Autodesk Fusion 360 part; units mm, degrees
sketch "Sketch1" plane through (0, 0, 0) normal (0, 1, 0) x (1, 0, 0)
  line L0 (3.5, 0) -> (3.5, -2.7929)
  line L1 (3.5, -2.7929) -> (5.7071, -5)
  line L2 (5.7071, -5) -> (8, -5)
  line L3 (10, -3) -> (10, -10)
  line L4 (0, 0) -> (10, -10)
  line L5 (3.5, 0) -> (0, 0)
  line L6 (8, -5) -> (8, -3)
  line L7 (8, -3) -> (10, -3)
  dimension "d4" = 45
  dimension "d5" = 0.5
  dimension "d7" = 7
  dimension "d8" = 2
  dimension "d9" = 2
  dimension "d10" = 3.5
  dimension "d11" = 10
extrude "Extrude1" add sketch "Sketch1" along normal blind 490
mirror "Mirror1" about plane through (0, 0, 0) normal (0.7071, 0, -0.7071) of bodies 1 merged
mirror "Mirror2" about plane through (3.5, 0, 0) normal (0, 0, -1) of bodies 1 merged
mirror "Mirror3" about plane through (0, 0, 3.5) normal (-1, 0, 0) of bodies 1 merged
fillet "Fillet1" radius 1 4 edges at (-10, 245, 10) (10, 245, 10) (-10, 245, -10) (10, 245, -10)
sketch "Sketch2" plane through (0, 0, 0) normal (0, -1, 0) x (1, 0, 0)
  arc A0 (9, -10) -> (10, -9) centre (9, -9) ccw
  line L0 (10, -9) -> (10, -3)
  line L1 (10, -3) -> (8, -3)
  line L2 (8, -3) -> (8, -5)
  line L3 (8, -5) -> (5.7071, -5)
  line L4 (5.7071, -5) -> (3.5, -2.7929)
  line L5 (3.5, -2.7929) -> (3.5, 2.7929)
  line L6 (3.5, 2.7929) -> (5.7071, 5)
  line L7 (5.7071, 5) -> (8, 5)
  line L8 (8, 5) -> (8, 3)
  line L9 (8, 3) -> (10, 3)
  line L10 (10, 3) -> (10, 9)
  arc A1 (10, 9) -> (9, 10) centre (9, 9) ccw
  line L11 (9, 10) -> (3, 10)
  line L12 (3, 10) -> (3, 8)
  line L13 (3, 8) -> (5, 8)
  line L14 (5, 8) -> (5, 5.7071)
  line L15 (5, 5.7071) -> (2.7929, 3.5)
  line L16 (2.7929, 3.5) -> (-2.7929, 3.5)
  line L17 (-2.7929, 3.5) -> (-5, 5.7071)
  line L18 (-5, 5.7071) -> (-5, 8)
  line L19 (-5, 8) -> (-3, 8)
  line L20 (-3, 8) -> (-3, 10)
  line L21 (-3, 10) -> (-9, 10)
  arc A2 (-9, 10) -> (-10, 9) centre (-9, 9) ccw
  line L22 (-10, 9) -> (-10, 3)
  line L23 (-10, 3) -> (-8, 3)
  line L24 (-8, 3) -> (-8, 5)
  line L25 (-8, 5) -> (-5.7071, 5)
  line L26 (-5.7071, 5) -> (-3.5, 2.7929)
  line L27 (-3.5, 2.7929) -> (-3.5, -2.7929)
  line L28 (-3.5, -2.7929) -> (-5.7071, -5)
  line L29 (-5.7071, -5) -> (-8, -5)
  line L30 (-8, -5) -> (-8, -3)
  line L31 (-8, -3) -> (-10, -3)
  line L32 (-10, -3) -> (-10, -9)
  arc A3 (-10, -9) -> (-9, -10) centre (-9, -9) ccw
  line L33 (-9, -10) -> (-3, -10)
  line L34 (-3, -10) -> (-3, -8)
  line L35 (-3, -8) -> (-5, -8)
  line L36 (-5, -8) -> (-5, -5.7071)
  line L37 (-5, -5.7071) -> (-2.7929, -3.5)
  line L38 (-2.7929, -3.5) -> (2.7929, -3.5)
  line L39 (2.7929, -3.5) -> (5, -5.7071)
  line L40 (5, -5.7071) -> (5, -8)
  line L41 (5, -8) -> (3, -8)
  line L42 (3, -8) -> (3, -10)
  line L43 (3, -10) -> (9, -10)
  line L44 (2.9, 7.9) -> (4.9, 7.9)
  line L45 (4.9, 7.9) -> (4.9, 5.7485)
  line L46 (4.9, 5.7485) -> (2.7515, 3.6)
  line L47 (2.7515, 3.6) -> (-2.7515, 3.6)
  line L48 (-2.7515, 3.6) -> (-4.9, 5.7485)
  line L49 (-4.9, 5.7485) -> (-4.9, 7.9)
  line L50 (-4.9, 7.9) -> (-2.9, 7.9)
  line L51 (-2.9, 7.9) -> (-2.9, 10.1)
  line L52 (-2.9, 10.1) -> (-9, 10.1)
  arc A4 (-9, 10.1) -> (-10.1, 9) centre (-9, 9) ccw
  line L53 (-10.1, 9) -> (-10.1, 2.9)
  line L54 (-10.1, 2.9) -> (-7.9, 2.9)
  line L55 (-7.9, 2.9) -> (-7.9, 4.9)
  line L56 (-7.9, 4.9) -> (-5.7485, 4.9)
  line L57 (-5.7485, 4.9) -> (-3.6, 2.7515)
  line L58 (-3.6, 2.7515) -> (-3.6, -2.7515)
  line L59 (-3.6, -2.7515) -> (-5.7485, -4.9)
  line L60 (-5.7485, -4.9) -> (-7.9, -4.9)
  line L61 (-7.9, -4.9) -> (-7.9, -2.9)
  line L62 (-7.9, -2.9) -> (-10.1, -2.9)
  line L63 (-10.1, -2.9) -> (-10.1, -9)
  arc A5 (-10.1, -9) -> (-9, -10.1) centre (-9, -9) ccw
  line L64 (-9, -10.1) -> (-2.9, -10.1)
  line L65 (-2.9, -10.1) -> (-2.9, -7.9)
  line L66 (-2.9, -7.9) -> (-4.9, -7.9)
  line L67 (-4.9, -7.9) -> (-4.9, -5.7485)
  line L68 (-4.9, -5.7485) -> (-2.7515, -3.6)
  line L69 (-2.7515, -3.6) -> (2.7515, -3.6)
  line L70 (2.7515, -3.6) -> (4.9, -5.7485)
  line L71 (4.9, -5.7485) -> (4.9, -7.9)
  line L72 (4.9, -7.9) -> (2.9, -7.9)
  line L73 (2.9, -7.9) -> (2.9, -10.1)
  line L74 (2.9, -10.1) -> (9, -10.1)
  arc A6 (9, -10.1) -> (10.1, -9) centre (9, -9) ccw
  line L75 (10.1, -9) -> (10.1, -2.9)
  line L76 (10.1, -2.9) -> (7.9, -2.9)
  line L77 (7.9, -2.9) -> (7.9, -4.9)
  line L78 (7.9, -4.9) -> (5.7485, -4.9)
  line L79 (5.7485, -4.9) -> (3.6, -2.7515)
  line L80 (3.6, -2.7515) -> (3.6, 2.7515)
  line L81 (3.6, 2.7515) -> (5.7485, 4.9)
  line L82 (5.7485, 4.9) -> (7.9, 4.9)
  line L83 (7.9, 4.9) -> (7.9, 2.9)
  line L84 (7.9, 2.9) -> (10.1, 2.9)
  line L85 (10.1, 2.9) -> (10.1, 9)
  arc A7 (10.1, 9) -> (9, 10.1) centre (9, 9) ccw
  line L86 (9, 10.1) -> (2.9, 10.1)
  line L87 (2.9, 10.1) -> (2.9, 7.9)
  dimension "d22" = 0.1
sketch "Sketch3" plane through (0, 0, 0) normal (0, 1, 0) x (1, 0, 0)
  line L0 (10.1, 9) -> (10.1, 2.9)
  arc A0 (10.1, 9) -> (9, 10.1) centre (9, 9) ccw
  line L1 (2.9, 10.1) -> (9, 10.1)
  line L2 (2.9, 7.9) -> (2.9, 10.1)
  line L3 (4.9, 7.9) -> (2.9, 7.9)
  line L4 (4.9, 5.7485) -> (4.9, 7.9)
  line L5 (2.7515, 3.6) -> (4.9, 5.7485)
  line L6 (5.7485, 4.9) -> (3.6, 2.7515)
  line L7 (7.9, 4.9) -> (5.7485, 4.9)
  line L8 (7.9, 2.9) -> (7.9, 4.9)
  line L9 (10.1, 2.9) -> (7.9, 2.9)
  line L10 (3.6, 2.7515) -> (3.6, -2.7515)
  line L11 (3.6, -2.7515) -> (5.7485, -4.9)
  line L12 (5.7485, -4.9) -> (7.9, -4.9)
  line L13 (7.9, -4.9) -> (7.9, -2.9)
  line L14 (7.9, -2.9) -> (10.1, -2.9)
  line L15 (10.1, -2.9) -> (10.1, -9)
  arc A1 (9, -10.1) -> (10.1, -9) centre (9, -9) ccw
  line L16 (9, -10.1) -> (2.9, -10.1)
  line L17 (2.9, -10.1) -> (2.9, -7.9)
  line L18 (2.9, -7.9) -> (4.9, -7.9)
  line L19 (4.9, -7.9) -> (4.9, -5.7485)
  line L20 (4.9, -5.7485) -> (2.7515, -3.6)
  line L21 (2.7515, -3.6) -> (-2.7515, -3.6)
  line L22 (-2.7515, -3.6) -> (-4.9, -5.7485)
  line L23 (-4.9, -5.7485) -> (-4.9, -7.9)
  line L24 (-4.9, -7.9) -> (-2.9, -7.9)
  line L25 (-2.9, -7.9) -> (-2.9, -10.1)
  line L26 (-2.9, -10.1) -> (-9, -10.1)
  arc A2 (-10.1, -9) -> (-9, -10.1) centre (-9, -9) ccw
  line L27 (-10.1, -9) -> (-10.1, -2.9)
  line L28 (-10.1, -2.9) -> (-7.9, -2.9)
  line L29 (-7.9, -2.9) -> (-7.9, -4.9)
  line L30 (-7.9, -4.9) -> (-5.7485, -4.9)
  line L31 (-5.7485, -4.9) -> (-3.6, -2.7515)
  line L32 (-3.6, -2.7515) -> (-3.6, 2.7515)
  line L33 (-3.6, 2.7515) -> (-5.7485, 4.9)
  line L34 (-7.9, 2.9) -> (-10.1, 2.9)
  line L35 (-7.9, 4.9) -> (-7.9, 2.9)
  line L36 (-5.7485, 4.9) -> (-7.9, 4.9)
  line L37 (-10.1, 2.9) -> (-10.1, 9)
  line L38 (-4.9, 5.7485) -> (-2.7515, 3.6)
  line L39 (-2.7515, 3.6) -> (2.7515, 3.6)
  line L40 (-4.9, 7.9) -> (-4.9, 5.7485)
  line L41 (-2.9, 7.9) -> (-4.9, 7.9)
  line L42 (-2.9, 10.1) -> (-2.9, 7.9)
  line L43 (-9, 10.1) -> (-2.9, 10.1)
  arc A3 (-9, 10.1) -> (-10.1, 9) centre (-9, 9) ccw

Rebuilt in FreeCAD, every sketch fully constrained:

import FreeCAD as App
import Part
import Sketcher

V = App.Vector
Q = App.Units.Quantity


def edges_at(feature, points):
    """Names of the edges that pass closest to the given points."""
    edges = feature.Shape.Edges
    near = lambda p: min(range(len(edges)), key=lambda i: edges[i].distToShape(Part.Vertex(*p))[0])
    return sorted({f"Edge{near(p) + 1}" for p in points})

doc = App.newDocument("Part")
body = doc.addObject("PartDesign::Body", "Body")

# Sketch on XZ plane
sketch1 = body.newObject("Sketcher::SketchObject", "Sketch")
sketch1.AttachmentSupport = (doc.getObject("XZ_Plane"), [""])
sketch1.MapMode = "FlatFace"
sketch1.addGeometry([
    Part.LineSegment(V(3.5, 2.8, 0), V(3.5, 0, 0)),  # 0
    Part.LineSegment(V(3.5, 0, 0), V(0, 0, 0)),  # 1
    Part.LineSegment(V(0, 0, 0), V(10, 10, 0)),  # 2
    Part.LineSegment(V(10, 10, 0), V(10, 3, 0)),  # 3
    Part.LineSegment(V(10, 3, 0), V(8, 3, 0)),  # 4
    Part.LineSegment(V(8, 3, 0), V(8, 5, 0)),  # 5
    Part.LineSegment(V(8, 5, 0), V(5.7, 5, 0)),  # 6
    Part.LineSegment(V(5.7, 5, 0), V(3.5, 2.8, 0)),  # 7
], False)
sketch1.addConstraint([
    Sketcher.Constraint("Coincident", 0, 2, 1, 1),
    Sketcher.Constraint("Coincident", 1, 2, 2, 1),
    Sketcher.Constraint("Coincident", 2, 2, 3, 1),
    Sketcher.Constraint("Coincident", 3, 2, 4, 1),
    Sketcher.Constraint("Coincident", 4, 2, 5, 1),
    Sketcher.Constraint("Coincident", 5, 2, 6, 1),
    Sketcher.Constraint("Coincident", 6, 2, 7, 1),
    Sketcher.Constraint("Coincident", 7, 2, 0, 1),
    Sketcher.Constraint("Vertical", 0),
    Sketcher.Constraint("Horizontal", 1),
    Sketcher.Constraint("Vertical", 3),
    Sketcher.Constraint("Horizontal", 4),
    Sketcher.Constraint("Vertical", 5),
    Sketcher.Constraint("Horizontal", 6),
    Sketcher.Constraint("Coincident", 1, 2, -1, 1),
    Sketcher.Constraint("Parallel", 2, 7),
    Sketcher.Constraint("Equal", 4, 5),
    Sketcher.Constraint("DistanceX", 4, 2, 4, 1, 2.0),
    Sketcher.Constraint("DistanceY", 3, 2, 3, 1, 7.0),
    Sketcher.Constraint("Angle", 2, Q("45 deg")),
    Sketcher.Constraint("DistanceX", 1, 2, 1, 1, 3.5),
    Sketcher.Constraint("DistanceX", -1, 1, 2, 2, 10.0),
    Sketcher.Constraint("DistanceX", 6, 2, 6, 1, 2.293),
])
pad1 = body.newObject("PartDesign::Pad", "Pad")
pad1.Profile = sketch1
pad1.Length = 490
pad1.Reversed = True
doc.recompute()

datumplane = body.newObject("PartDesign::Plane", "DatumPlane")
datumplane.Placement = App.Placement(V(0, 0, 0), App.Rotation(V(-0.707106781, 0, -0.707106781), V(0, -1, 0), V(-0.707106781, 0, 0.707106781), "ZXY"))
mirrored = body.newObject("PartDesign::Mirrored", "Mirrored")
mirrored.TransformMode = "Transform body"
mirrored.MirrorPlane = (datumplane, [""])
body.Tip = mirrored
doc.recompute()

mirrored2 = body.newObject("PartDesign::Mirrored", "Mirrored001")
mirrored2.TransformMode = "Transform body"
mirrored2.MirrorPlane = (doc.getObject("XY_Plane"), [""])
body.Tip = mirrored2
doc.recompute()

mirrored3 = body.newObject("PartDesign::Mirrored", "Mirrored002")
mirrored3.TransformMode = "Transform body"
mirrored3.MirrorPlane = (doc.getObject("YZ_Plane"), [""])
body.Tip = mirrored3
doc.recompute()

fillet = body.newObject("PartDesign::Fillet", "Fillet")
fillet.Base = (mirrored3, edges_at(mirrored3, [
    (-10, 245, 10),
    (10, 245, 10),
    (-10, 245, -10),
    (10, 245, -10),
]))
fillet.Radius = 1

doc.recompute()
